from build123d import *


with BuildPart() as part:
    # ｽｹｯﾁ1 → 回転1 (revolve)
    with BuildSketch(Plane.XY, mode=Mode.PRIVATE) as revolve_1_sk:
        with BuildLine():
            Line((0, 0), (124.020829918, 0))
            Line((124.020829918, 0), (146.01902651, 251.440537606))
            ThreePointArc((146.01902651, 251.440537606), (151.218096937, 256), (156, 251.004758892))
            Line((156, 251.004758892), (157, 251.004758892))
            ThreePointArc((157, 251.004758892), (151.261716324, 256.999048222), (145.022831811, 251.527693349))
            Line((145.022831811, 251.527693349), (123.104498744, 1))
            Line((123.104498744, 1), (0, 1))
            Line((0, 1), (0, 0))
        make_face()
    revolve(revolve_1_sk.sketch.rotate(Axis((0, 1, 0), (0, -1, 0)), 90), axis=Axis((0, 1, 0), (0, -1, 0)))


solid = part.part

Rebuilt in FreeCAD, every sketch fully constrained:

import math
import FreeCAD as App
import Part
import Sketcher

V = App.Vector
Q = App.Units.Quantity

doc = App.newDocument("Part")
body = doc.addObject("PartDesign::Body", "Body")

# Sketch on XY plane
sketch1 = doc.addObject("Sketcher::SketchObject", "Sketch")
body.addObject(sketch1)
sketch1.AttachmentSupport = (doc.XY_Plane, [""])
sketch1.MapMode = "FlatFace"
sketch1.addGeometry([
    Part.LineSegment(V(0, 0, 0), V(124, 0, 0)),  # 0
    Part.LineSegment(V(124, 0, 0), V(146, 251.4, 0)),  # 1
    Part.ArcOfCircle(Part.Circle(V(151, 251, 0), V(0, 0, 1), 5), math.radians(0), math.radians(175)),  # 2
    Part.LineSegment(V(156, 251, 0), V(157, 251, 0)),  # 3
    Part.ArcOfCircle(Part.Circle(V(151, 251, 0), V(0, 0, 1), 6), math.radians(0), math.radians(175)),  # 4
    Part.LineSegment(V(145, 251.5, 0), V(123.1, 1, 0)),  # 5
    Part.LineSegment(V(123.1, 1, 0), V(0, 1, 0)),  # 6
    Part.LineSegment(V(0, 1, 0), V(0, 0, 0)),  # 7
], False)
sketch1.addConstraint([
    Sketcher.Constraint("Coincident", 0, 2, 1, 1),
    Sketcher.Constraint("Tangent", 1, 2, 2, 2),
    Sketcher.Constraint("Coincident", 2, 1, 3, 1),
    Sketcher.Constraint("Coincident", 3, 2, 4, 1),
    Sketcher.Constraint("Tangent", 4, 2, 5, 1),
    Sketcher.Constraint("Coincident", 5, 2, 6, 1),
    Sketcher.Constraint("Coincident", 6, 2, 7, 1),
    Sketcher.Constraint("Coincident", 7, 2, 0, 1),
    Sketcher.Constraint("Horizontal", 0),
    Sketcher.Constraint("Horizontal", 3),
    Sketcher.Constraint("Horizontal", 6),
    Sketcher.Constraint("Vertical", 7),
    Sketcher.Constraint("Coincident", 7, 2, -1, 1),
    Sketcher.Constraint("Coincident", 4, 3, 2, 3),
    Sketcher.Constraint("Parallel", 1, 5),
    Sketcher.Constraint("Horizontal", 4, 3, 2, 1),
    Sketcher.Constraint("Equal", 3, 7),
    Sketcher.Constraint("Radius", 2, 5.0),
    Sketcher.Constraint("Radius", 4, 6.0),
    Sketcher.Constraint("Angle", 1, Q("85 deg")),
    Sketcher.Constraint("DistanceX", -1, 1, 2, 3, 151.0),
    Sketcher.Constraint("Distance", 1, 252.401),
])
revolution = doc.addObject("PartDesign::Revolution", "Revolution")
body.addObject(revolution)
revolution.Profile = sketch1
revolution.ReferenceAxis = (sketch1, ["V_Axis"])
revolution.Angle = 360

doc.recompute()
